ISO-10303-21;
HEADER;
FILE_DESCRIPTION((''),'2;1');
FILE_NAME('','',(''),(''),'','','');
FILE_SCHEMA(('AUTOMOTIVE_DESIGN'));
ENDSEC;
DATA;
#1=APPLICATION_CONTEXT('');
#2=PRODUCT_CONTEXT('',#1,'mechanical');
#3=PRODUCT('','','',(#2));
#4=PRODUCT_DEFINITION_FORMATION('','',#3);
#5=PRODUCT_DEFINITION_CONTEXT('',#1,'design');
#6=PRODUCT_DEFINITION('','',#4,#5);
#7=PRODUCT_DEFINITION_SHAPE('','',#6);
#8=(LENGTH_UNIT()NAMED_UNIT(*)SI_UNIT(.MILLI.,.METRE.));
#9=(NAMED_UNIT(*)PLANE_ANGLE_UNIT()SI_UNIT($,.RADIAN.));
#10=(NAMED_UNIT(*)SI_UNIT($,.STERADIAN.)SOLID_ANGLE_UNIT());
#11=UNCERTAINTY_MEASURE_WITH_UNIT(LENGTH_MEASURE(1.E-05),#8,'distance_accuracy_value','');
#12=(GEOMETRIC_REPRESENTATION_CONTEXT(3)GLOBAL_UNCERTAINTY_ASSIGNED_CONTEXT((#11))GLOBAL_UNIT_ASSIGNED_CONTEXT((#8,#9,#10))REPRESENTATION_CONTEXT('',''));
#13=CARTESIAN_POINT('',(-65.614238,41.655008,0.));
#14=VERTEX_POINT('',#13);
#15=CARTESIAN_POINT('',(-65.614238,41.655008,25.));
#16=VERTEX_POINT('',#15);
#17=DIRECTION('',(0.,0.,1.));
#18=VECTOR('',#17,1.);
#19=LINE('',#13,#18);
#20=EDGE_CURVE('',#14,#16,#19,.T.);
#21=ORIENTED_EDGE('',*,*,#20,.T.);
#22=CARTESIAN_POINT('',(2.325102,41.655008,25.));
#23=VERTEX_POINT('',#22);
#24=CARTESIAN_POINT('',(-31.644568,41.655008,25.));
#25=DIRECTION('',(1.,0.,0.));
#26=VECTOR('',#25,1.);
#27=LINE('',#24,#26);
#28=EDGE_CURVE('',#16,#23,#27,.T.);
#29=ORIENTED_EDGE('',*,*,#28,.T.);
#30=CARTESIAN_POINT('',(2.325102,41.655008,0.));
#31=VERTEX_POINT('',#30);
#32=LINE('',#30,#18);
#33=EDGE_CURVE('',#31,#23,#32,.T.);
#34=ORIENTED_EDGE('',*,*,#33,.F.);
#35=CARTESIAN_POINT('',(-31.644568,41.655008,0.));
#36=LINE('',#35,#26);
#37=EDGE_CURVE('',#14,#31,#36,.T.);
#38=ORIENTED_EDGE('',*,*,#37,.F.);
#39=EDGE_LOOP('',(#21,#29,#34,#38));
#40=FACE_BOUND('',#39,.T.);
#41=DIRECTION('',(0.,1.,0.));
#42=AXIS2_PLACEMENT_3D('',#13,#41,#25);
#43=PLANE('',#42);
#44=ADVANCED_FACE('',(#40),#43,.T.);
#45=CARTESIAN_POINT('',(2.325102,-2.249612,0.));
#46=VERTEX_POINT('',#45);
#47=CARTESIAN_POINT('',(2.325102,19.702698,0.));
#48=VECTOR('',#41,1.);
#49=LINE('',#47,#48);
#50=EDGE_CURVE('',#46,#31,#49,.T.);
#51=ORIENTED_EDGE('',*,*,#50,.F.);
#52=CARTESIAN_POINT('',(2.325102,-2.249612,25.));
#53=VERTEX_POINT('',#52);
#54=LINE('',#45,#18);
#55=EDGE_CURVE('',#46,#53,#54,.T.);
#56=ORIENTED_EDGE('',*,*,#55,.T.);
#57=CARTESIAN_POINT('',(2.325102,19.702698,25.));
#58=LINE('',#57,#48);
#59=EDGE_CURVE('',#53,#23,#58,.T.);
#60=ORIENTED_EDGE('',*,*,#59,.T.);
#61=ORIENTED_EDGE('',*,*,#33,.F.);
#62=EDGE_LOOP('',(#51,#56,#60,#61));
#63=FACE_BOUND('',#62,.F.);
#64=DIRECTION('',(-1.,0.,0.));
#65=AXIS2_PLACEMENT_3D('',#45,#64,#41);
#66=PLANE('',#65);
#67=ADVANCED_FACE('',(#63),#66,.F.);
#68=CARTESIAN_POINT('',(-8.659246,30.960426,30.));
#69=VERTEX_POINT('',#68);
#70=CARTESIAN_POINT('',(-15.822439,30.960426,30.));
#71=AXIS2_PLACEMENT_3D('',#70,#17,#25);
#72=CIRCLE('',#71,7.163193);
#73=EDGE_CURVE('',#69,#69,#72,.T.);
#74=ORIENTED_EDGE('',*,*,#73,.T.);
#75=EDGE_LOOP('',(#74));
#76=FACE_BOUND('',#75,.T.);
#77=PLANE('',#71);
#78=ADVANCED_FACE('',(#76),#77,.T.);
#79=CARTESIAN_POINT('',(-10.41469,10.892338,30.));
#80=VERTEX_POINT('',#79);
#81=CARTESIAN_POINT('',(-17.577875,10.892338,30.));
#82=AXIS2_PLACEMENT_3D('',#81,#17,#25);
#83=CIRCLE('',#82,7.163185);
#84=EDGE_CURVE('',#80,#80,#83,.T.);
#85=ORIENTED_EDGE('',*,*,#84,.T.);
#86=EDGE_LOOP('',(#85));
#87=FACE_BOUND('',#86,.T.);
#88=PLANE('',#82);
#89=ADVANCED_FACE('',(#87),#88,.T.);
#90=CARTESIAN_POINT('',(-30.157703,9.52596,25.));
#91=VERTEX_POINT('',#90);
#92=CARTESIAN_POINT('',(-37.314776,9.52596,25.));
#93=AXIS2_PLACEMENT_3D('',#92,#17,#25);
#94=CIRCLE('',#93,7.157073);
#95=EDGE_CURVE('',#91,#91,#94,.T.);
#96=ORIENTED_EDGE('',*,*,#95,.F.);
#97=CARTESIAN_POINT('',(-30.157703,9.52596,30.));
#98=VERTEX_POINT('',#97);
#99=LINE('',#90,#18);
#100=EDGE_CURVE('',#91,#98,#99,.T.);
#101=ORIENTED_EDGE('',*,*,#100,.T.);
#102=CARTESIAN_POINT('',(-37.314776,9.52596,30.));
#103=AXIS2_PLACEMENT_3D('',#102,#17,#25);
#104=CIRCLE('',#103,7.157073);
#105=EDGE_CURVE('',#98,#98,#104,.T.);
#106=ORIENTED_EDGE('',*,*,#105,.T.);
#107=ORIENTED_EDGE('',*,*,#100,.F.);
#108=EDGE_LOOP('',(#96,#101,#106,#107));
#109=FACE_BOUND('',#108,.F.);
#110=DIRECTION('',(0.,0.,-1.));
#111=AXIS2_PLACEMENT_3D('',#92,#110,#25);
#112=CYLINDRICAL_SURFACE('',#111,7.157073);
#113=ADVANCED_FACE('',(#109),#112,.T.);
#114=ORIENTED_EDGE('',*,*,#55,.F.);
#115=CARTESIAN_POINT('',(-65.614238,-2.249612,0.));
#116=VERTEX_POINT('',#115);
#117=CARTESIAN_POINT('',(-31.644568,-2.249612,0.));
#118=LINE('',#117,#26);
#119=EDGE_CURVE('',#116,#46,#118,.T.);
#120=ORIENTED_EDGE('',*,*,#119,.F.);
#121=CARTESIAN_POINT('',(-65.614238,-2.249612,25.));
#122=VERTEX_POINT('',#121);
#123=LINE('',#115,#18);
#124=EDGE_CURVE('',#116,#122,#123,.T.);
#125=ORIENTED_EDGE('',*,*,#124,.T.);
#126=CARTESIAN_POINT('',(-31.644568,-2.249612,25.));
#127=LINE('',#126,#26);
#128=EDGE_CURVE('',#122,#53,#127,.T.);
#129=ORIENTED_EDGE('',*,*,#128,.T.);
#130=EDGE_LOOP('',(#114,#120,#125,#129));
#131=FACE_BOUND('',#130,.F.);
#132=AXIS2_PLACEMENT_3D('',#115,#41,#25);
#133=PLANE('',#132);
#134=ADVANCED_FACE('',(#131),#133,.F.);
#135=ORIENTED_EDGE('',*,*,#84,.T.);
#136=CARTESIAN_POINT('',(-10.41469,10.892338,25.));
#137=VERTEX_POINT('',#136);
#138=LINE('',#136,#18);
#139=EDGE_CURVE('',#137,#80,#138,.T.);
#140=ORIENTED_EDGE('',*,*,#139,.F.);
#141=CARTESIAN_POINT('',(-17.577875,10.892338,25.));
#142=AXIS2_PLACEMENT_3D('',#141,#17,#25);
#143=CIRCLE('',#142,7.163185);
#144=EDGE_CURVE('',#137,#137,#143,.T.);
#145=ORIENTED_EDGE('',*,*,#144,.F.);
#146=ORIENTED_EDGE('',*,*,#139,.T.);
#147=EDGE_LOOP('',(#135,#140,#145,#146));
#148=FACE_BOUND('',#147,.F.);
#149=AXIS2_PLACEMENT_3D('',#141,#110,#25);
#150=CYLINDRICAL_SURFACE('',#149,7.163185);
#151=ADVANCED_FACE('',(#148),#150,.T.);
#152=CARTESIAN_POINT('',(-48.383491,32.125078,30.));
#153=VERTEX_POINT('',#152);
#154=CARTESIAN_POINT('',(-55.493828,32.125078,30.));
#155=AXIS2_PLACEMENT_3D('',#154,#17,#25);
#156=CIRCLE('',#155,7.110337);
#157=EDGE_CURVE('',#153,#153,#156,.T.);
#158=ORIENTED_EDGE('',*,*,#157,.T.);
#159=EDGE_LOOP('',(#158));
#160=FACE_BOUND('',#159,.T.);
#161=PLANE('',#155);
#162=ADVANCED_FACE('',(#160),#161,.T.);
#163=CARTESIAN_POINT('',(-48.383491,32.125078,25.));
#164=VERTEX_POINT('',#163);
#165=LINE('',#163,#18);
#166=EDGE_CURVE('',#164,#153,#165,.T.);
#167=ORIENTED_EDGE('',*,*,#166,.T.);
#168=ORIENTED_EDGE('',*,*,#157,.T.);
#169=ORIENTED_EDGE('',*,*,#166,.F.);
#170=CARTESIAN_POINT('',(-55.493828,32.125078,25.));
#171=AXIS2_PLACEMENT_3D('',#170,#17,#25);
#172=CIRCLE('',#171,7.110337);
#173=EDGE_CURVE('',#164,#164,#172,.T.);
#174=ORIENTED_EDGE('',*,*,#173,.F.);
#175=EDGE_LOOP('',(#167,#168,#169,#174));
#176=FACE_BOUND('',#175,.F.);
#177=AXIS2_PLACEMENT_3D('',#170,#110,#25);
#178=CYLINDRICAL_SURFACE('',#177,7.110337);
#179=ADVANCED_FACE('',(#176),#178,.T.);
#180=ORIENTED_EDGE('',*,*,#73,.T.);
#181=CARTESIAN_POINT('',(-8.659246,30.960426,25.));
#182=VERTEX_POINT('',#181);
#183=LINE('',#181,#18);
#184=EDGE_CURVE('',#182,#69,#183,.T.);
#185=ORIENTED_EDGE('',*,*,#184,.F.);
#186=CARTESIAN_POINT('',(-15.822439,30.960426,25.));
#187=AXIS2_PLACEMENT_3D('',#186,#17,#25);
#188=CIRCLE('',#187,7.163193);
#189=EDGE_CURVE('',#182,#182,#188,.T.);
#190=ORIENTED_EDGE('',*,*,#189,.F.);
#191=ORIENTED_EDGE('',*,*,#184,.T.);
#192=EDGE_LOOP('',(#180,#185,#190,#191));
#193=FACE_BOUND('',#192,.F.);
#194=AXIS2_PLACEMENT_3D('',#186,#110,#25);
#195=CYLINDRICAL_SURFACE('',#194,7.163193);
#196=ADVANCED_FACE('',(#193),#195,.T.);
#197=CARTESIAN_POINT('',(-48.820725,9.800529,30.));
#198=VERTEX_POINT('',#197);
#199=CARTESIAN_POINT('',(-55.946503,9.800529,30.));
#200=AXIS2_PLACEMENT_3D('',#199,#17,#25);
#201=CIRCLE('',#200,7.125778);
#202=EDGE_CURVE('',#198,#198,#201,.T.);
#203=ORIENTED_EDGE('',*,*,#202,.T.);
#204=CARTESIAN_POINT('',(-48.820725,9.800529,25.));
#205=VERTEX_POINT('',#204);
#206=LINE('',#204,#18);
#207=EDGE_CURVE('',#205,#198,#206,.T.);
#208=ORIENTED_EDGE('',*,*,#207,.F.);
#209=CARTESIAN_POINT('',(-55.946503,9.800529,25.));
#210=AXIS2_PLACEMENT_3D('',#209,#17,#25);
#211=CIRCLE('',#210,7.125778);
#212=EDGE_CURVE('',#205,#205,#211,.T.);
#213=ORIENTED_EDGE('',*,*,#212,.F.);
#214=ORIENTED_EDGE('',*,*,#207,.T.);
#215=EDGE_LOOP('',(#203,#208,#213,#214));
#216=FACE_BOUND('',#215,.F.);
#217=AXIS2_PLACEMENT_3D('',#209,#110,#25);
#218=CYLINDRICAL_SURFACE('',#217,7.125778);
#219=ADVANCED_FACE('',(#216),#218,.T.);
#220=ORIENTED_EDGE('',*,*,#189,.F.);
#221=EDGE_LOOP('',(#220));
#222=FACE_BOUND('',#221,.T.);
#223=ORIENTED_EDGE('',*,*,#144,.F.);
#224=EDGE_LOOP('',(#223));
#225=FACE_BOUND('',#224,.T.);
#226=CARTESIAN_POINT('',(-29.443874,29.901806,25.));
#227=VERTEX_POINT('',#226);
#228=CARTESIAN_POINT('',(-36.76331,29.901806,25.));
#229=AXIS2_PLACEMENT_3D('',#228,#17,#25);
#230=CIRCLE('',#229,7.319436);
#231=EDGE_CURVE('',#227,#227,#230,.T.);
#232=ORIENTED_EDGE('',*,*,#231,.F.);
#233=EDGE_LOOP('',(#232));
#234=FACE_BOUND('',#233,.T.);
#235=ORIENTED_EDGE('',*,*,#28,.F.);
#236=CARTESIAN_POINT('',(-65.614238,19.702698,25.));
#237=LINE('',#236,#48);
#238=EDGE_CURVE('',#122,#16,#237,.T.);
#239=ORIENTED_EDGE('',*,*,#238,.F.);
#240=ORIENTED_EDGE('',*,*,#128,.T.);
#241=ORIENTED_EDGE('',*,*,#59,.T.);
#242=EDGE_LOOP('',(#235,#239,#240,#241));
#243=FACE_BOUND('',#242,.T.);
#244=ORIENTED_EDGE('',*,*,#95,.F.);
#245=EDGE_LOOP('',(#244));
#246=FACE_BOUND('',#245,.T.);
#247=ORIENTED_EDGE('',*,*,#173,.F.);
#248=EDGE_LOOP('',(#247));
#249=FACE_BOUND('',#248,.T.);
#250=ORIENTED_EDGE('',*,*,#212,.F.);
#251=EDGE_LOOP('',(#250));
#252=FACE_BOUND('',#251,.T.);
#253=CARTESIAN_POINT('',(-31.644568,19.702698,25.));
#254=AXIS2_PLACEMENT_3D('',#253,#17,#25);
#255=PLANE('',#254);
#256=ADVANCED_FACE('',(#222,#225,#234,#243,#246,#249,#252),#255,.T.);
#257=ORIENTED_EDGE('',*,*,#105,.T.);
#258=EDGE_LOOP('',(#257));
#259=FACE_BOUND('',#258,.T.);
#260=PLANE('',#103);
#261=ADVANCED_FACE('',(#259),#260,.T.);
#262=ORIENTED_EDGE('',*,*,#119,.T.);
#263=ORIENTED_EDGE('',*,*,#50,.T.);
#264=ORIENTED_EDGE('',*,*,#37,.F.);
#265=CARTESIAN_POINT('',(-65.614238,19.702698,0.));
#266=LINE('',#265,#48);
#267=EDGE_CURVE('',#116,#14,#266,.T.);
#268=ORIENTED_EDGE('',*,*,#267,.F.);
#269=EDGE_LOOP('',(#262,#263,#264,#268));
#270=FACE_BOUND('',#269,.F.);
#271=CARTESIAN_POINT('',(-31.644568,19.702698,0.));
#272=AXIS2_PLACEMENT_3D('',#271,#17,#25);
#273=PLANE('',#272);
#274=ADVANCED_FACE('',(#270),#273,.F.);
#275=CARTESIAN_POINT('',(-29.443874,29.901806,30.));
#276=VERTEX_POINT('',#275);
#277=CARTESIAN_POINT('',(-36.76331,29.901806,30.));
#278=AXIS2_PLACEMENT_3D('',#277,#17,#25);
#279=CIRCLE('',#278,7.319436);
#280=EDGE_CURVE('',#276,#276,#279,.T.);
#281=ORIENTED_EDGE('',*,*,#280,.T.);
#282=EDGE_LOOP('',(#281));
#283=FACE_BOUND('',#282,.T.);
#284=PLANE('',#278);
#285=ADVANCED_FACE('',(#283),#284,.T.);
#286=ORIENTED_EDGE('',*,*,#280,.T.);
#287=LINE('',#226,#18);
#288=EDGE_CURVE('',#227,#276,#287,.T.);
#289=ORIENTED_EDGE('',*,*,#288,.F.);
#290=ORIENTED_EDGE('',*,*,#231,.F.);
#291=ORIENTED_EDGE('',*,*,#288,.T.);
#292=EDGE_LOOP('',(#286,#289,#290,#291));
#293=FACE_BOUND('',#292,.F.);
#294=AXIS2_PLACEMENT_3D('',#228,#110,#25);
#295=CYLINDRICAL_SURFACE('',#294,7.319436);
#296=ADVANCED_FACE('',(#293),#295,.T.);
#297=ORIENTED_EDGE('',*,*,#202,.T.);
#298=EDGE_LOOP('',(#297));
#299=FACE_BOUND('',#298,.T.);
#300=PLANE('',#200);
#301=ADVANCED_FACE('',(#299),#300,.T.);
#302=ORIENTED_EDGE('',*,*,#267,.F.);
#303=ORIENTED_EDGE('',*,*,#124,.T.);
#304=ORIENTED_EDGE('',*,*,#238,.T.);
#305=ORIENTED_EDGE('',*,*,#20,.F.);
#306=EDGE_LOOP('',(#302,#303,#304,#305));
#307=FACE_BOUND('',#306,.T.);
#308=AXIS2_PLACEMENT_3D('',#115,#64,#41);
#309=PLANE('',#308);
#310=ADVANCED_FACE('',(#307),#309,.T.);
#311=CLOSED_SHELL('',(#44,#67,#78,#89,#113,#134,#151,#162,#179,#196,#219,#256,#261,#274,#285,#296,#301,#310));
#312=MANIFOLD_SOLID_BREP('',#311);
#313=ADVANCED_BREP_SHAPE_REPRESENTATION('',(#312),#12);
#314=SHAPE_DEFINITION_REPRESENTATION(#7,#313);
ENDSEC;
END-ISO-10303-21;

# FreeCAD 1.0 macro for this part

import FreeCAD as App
import Part
import Sketcher

V = App.Vector


def add_polygon(sketch, points):
    """Adds a closed chain of lines whose ends are joined by coincident constraints."""
    first, n = sketch.GeometryCount, len(points)
    for a, b in zip(points, points[1:] + points[:1]):
        sketch.addGeometry(Part.LineSegment(App.Vector(*a, 0), App.Vector(*b, 0)), False)
    for i in range(n):
        sketch.addConstraint(Sketcher.Constraint("Coincident", first + i, 2, first + (i + 1) % n, 1))

doc = App.newDocument("Part")
body = doc.addObject("PartDesign::Body", "Body")

sketch1 = body.newObject("Sketcher::SketchObject", "Sketch")
sketch1.AttachmentSupport = (doc.getObject("XY_Plane"), [""])
sketch1.MapMode = "FlatFace"
add_polygon(sketch1, [(-66, 42), (-66, -2), (2, -2), (2, 42)])
sketch1.addConstraint(Sketcher.Constraint("Vertical", 0))
sketch1.addConstraint(Sketcher.Constraint("Horizontal", 1))
sketch1.addConstraint(Sketcher.Constraint("Vertical", 2))
sketch1.addConstraint(Sketcher.Constraint("Horizontal", 3))
sketch1.addConstraint(Sketcher.Constraint("DistanceX", 1, 1, 1, 2, 67.939341))
sketch1.addConstraint(Sketcher.Constraint("DistanceY", 0, 2, 0, 1, 43.90462))
sketch1.addConstraint(Sketcher.Constraint("DistanceX", 0, 2, -1, 1, 65.614238))
sketch1.addConstraint(Sketcher.Constraint("DistanceY", 0, 2, -1, 1, 2.249612))
pad1 = body.newObject("PartDesign::Pad", "Pad")
pad1.Profile = sketch1
pad1.Length = 25

sketch2 = body.newObject("Sketcher::SketchObject", "Sketch001")
sketch2.AttachmentSupport = (doc.getObject("XY_Plane"), [""])
sketch2.MapMode = "FlatFace"
sketch2.AttachmentOffset = App.Placement(V(0, 0, 25), App.Rotation())
sketch2.addGeometry(Part.Circle(V(-18, 11, 0), V(0, 0, 1), 7), False)
sketch2.addConstraint(Sketcher.Constraint("Diameter", 0, 14.32637))
sketch2.addConstraint(Sketcher.Constraint("DistanceX", 0, 3, -1, 1, 17.577875))
sketch2.addConstraint(Sketcher.Constraint("DistanceY", -1, 1, 0, 3, 10.892338))
pad2 = body.newObject("PartDesign::Pad", "Pad001")
pad2.Profile = sketch2
pad2.Length = 5

sketch3 = body.newObject("Sketcher::SketchObject", "Sketch002")
sketch3.AttachmentSupport = (doc.getObject("XY_Plane"), [""])
sketch3.MapMode = "FlatFace"
sketch3.AttachmentOffset = App.Placement(V(0, 0, 25), App.Rotation())
sketch3.addGeometry(Part.Circle(V(-56, 10, 0), V(0, 0, 1), 7), False)
sketch3.addConstraint(Sketcher.Constraint("Diameter", 0, 14.251556))
sketch3.addConstraint(Sketcher.Constraint("DistanceY", -1, 1, 0, 3, 9.800529))
sketch3.addConstraint(Sketcher.Constraint("DistanceX", 0, 3, -1, 1, 55.946503))
pad3 = body.newObject("PartDesign::Pad", "Pad002")
pad3.Profile = sketch3
pad3.Length = 5

sketch4 = body.newObject("Sketcher::SketchObject", "Sketch003")
sketch4.AttachmentSupport = (doc.getObject("XY_Plane"), [""])
sketch4.MapMode = "FlatFace"
sketch4.AttachmentOffset = App.Placement(V(0, 0, 25), App.Rotation())
sketch4.addGeometry(Part.Circle(V(-37, 10, 0), V(0, 0, 1), 7), False)
sketch4.addConstraint(Sketcher.Constraint("Diameter", 0, 14.314146))
sketch4.addConstraint(Sketcher.Constraint("DistanceY", -1, 1, 0, 3, 9.52596))
sketch4.addConstraint(Sketcher.Constraint("DistanceX", 0, 3, -1, 1, 37.314776))
pad4 = body.newObject("PartDesign::Pad", "Pad003")
pad4.Profile = sketch4
pad4.Length = 5

sketch5 = body.newObject("Sketcher::SketchObject", "Sketch004")
sketch5.AttachmentSupport = (doc.getObject("XY_Plane"), [""])
sketch5.MapMode = "FlatFace"
sketch5.AttachmentOffset = App.Placement(V(0, 0, 25), App.Rotation())
sketch5.addGeometry(Part.Circle(V(-55, 32, 0), V(0, 0, 1), 7), False)
sketch5.addConstraint(Sketcher.Constraint("Diameter", 0, 14.220674))
sketch5.addConstraint(Sketcher.Constraint("DistanceY", -1, 1, 0, 3, 32.125078))
sketch5.addConstraint(Sketcher.Constraint("DistanceX", 0, 3, -1, 1, 55.493828))
pad5 = body.newObject("PartDesign::Pad", "Pad004")
pad5.Profile = sketch5
pad5.Length = 5

sketch6 = body.newObject("Sketcher::SketchObject", "Sketch005")
sketch6.AttachmentSupport = (doc.getObject("XY_Plane"), [""])
sketch6.MapMode = "FlatFace"
sketch6.AttachmentOffset = App.Placement(V(0, 0, 25), App.Rotation())
sketch6.addGeometry(Part.Circle(V(-37, 30, 0), V(0, 0, 1), 7), False)
sketch6.addGeometry(Part.Circle(V(-16, 31, 0), V(0, 0, 1), 7), False)
sketch6.addConstraint(Sketcher.Constraint("Diameter", 0, 14.638872))
sketch6.addConstraint(Sketcher.Constraint("Diameter", 1, 14.326386))
sketch6.addConstraint(Sketcher.Constraint("DistanceX", 0, 3, -1, 1, 36.76331))
sketch6.addConstraint(Sketcher.Constraint("DistanceX", 1, 3, -1, 1, 15.822439))
sketch6.addConstraint(Sketcher.Constraint("DistanceY", 0, 3, 1, 3, 1.05862))
sketch6.addConstraint(Sketcher.Constraint("DistanceY", -1, 1, 0, 3, 29.901806))
pad6 = body.newObject("PartDesign::Pad", "Pad005")
pad6.Profile = sketch6
pad6.Length = 5

doc.recompute()
